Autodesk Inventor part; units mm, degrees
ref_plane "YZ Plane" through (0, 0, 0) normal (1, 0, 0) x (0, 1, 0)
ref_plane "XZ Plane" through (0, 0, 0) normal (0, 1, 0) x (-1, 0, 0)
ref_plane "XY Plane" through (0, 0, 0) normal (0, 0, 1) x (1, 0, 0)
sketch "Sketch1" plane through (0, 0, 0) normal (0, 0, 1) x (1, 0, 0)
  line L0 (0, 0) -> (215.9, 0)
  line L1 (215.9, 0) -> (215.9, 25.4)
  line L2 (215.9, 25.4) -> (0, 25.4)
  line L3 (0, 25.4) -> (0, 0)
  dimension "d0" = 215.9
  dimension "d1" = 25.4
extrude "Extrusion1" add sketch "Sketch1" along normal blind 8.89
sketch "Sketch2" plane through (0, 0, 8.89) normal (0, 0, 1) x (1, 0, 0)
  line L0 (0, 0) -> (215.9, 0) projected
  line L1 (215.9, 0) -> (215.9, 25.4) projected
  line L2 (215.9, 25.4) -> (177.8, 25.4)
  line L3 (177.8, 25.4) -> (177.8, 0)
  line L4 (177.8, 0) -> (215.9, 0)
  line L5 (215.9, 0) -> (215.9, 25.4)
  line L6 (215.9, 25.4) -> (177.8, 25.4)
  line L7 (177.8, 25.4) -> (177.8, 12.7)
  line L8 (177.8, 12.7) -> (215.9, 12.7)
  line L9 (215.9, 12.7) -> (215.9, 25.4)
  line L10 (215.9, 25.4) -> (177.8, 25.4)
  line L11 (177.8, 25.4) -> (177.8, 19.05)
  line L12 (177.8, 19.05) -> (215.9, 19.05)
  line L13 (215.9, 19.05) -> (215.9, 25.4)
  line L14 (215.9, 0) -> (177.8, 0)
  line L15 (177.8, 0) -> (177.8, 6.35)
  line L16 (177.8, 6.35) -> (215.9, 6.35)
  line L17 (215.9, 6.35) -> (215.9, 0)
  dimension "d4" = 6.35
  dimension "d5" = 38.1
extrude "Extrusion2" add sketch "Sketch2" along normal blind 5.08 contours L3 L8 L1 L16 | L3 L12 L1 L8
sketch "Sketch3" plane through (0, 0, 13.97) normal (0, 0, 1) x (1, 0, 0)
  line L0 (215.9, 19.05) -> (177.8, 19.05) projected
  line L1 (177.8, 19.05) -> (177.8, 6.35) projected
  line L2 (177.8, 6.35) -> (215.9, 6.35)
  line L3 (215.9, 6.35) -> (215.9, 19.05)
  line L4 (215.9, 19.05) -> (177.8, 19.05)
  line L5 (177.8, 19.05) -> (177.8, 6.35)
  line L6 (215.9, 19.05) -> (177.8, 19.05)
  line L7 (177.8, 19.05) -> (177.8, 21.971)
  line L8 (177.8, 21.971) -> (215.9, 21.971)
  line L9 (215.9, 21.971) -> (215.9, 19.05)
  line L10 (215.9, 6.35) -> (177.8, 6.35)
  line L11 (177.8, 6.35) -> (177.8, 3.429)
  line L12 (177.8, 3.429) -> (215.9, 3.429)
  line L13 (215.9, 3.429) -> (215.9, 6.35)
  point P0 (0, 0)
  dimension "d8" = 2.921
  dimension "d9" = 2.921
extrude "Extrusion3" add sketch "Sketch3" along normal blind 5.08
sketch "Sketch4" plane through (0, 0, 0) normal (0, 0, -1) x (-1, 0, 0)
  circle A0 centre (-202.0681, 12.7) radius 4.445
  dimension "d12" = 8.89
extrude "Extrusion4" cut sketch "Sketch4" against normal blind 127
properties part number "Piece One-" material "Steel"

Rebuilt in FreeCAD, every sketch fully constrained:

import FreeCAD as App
import Part
import Sketcher
from FreeCAD import Vector
Q = App.Units.Quantity

doc = App.newDocument("Part")
body = doc.addObject("PartDesign::Body", "Body")

sketch1 = body.newObject("Sketcher::SketchObject", "Sketch")
sketch1.AttachmentSupport = (doc.getObject("XY_Plane"), [""])
sketch1.MapMode = "FlatFace"
sketch1.addGeometry([
    Part.LineSegment(Vector(0, 25, 0), Vector(0, 0, 0)),
    Part.LineSegment(Vector(0, 0, 0), Vector(216, 0, 0)),
    Part.LineSegment(Vector(216, 0, 0), Vector(216, 25, 0)),
    Part.LineSegment(Vector(216, 25, 0), Vector(0, 25, 0)),
], False)
sketch1.addConstraint([
    Sketcher.Constraint("Coincident", 0, 2, 1, 1),
    Sketcher.Constraint("Coincident", 1, 2, 2, 1),
    Sketcher.Constraint("Coincident", 2, 2, 3, 1),
    Sketcher.Constraint("Coincident", 3, 2, 0, 1),
    Sketcher.Constraint("Vertical", 0),
    Sketcher.Constraint("Horizontal", 1),
    Sketcher.Constraint("Vertical", 2),
    Sketcher.Constraint("Horizontal", 3),
    Sketcher.Constraint("Coincident", 0, 2, -1, 1),
    Sketcher.Constraint("DistanceY", 0, 2, 0, 1, Q("1 in")),
    Sketcher.Constraint("DistanceX", 1, 1, 1, 2, Q("8.5 in")),
])
pad1 = body.newObject("PartDesign::Pad", "Pad")
pad1.Profile = sketch1
pad1.Length = Q("0.35 in")

sketch2 = body.newObject("Sketcher::SketchObject", "Sketch001")
sketch2.AttachmentSupport = (doc.getObject("XY_Plane"), [""])
sketch2.MapMode = "FlatFace"
sketch2.AttachmentOffset = App.Placement(Vector(0, 0, 0.35 * 25.4), App.Rotation())
sketch2.addGeometry([
    Part.LineSegment(Vector(178, 6, 0), Vector(216, 6, 0)),
    Part.LineSegment(Vector(216, 6, 0), Vector(216, 19, 0)),
    Part.LineSegment(Vector(216, 19, 0), Vector(178, 19, 0)),
    Part.LineSegment(Vector(178, 19, 0), Vector(178, 6, 0)),
], False)
sketch2.addConstraint([
    Sketcher.Constraint("Coincident", 0, 2, 1, 1),
    Sketcher.Constraint("Coincident", 1, 2, 2, 1),
    Sketcher.Constraint("Coincident", 2, 2, 3, 1),
    Sketcher.Constraint("Coincident", 3, 2, 0, 1),
    Sketcher.Constraint("Horizontal", 0),
    Sketcher.Constraint("Vertical", 1),
    Sketcher.Constraint("Horizontal", 2),
    Sketcher.Constraint("Vertical", 3),
    Sketcher.Constraint("DistanceX", 0, 1, 0, 2, Q("1.5 in")),
    Sketcher.Constraint("DistanceY", -1, 1, 0, 2, Q("0.25 in")),
    Sketcher.Constraint("DistanceY", 1, 1, 1, 2, Q("0.5 in")),
    Sketcher.Constraint("DistanceX", -1, 1, 2, 2, Q("7 in")),
])
pad2 = body.newObject("PartDesign::Pad", "Pad001")
pad2.Profile = sketch2
pad2.Length = Q("0.2 in")

sketch3 = body.newObject("Sketcher::SketchObject", "Sketch002")
sketch3.AttachmentSupport = (doc.getObject("XY_Plane"), [""])
sketch3.MapMode = "FlatFace"
sketch3.AttachmentOffset = App.Placement(Vector(0, 0, 0.55 * 25.4), App.Rotation())
sketch3.addGeometry([
    Part.LineSegment(Vector(216, 22, 0), Vector(178, 22, 0)),
    Part.LineSegment(Vector(178, 22, 0), Vector(178, 3, 0)),
    Part.LineSegment(Vector(178, 3, 0), Vector(216, 3, 0)),
    Part.LineSegment(Vector(216, 3, 0), Vector(216, 22, 0)),
], False)
sketch3.addConstraint([
    Sketcher.Constraint("Coincident", 0, 2, 1, 1),
    Sketcher.Constraint("Coincident", 1, 2, 2, 1),
    Sketcher.Constraint("Coincident", 2, 2, 3, 1),
    Sketcher.Constraint("Coincident", 3, 2, 0, 1),
    Sketcher.Constraint("Horizontal", 0),
    Sketcher.Constraint("Vertical", 1),
    Sketcher.Constraint("Horizontal", 2),
    Sketcher.Constraint("Vertical", 3),
    Sketcher.Constraint("DistanceX", 0, 2, 0, 1, Q("1.5 in")),
    Sketcher.Constraint("DistanceX", -1, 1, 0, 2, Q("7 in")),
    Sketcher.Constraint("DistanceY", 1, 2, 1, 1, Q("0.73 in")),
    Sketcher.Constraint("DistanceY", -1, 1, 0, 2, Q("0.865 in")),
])
pad3 = body.newObject("PartDesign::Pad", "Pad002")
pad3.Profile = sketch3
pad3.Length = Q("0.2 in")

sketch4 = body.newObject("Sketcher::SketchObject", "Sketch003")
sketch4.AttachmentSupport = (doc.getObject("XY_Plane"), [""])
sketch4.MapMode = "FlatFace"
sketch4.addGeometry(Part.Circle(Vector(202.1, 12.7, 0), Vector(0, 0, 1), 4.4), False)
sketch4.addConstraint([
    Sketcher.Constraint("Diameter", 0, Q("0.35 in")),
    Sketcher.Constraint("DistanceY", -1, 1, 0, 3, Q("0.5 in")),
    Sketcher.Constraint("DistanceX", -1, 1, 0, 3, Q("202.068 mm")),
])
pocket1 = body.newObject("PartDesign::Pocket", "Pocket")
pocket1.Profile = sketch4
pocket1.Length = Q("5 in")
pocket1.Reversed = True

doc.recompute()
